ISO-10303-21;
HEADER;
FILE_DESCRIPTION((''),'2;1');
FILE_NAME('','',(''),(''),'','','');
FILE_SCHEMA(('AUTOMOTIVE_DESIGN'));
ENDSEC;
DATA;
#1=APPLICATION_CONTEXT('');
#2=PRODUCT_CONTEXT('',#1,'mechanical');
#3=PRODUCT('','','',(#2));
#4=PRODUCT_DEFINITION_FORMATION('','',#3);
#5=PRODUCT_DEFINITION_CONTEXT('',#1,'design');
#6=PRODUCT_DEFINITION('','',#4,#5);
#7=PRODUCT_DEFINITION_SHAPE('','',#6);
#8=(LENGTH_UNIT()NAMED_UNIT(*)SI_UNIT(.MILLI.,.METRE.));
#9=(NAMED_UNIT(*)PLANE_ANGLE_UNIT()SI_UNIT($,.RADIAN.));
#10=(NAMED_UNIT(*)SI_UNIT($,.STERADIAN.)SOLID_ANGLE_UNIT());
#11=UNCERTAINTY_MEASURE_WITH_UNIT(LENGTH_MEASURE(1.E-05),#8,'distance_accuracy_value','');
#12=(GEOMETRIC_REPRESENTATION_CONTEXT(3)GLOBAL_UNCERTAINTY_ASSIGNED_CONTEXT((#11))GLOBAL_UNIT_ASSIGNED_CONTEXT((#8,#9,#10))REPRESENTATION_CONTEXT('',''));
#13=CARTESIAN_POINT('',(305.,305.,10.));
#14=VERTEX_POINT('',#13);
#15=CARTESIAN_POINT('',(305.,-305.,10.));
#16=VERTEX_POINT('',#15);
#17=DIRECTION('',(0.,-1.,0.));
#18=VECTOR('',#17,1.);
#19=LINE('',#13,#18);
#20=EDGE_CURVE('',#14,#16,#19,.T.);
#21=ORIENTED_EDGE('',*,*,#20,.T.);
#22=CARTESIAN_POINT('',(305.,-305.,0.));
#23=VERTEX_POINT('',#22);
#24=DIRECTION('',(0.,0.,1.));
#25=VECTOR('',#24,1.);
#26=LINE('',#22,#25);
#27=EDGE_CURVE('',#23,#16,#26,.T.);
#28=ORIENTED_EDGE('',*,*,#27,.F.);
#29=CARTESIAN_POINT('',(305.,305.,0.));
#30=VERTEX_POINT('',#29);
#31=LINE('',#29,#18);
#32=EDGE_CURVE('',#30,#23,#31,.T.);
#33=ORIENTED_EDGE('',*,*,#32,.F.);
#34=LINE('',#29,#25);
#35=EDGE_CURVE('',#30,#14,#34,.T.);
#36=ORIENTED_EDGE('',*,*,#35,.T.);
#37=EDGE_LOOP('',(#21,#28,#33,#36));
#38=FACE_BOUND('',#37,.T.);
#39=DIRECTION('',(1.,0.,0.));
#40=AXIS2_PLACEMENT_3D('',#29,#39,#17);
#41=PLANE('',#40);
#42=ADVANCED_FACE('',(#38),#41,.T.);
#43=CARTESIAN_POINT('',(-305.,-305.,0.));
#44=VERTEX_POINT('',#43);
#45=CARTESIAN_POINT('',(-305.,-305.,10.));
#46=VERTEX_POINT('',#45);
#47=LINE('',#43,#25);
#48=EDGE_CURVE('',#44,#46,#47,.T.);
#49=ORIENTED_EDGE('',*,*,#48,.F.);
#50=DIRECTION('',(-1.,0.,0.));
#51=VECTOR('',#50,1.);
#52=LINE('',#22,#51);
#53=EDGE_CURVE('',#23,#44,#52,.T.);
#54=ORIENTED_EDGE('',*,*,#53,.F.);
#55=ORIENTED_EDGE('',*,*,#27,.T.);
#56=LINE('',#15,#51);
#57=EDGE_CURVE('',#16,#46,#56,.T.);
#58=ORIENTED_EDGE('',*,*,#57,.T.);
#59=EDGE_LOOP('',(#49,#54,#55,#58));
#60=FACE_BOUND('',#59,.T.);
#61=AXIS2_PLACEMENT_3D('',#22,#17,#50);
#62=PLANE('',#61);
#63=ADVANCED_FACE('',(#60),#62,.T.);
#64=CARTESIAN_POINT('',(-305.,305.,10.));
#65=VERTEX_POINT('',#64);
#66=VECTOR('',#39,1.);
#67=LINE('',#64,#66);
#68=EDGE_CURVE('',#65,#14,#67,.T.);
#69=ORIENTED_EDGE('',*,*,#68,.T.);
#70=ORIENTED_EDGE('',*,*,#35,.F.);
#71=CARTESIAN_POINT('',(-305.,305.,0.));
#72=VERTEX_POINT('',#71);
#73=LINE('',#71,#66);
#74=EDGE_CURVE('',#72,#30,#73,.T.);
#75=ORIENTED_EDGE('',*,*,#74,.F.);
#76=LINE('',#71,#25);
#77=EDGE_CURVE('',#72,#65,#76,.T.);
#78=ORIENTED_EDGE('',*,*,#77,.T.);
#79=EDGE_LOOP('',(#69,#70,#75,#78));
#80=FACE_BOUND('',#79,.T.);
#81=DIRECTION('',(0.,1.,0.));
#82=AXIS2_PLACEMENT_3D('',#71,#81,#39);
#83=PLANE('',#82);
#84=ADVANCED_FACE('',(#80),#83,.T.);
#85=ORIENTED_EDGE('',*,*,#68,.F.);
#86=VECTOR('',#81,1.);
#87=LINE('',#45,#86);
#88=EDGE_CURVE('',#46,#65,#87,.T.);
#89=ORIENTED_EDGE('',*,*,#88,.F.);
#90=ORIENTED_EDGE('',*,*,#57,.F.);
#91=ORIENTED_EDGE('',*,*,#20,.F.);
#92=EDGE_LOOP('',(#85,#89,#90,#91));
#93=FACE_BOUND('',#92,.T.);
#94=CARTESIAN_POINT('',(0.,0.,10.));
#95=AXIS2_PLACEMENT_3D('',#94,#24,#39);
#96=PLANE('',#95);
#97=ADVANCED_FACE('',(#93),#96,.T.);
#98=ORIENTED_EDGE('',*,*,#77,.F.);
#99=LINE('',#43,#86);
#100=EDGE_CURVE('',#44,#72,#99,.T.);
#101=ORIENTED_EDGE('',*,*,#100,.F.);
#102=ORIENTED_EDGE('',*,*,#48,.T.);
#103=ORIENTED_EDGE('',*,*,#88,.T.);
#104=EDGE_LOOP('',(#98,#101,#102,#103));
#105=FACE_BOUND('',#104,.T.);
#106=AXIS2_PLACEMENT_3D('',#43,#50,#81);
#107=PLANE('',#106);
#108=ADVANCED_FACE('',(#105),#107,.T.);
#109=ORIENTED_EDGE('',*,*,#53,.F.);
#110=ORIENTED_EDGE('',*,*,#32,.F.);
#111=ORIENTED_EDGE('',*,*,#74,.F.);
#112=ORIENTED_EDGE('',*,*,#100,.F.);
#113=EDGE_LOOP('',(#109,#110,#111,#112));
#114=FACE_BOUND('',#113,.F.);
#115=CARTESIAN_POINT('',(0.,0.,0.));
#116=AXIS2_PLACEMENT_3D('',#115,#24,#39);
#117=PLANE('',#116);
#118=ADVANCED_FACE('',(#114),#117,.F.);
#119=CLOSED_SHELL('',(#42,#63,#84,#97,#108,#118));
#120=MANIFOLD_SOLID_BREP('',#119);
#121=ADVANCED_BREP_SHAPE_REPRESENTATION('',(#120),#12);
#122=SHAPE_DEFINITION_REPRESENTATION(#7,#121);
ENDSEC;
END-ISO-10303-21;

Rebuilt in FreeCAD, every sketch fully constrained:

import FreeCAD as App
import Part
import Sketcher
from FreeCAD import Vector

doc = App.newDocument("Part")
params = doc.addObject("Spreadsheet::Sheet", "Params")
for row, (alias, value) in enumerate([
    ("sketch1_width", "610 mm"),
    ("pad1_length", "10 mm"),
], start=1):
    params.set(f"A{row}", alias)
    params.set(f"B{row}", "=" + value)
    params.setAlias(f"B{row}", alias)

body = doc.addObject("PartDesign::Body", "Body")

# Sketch on XY plane
sketch1 = doc.addObject("Sketcher::SketchObject", "Sketch")
body.addObject(sketch1)
sketch1.AttachmentSupport = (doc.XY_Plane, [""])
sketch1.MapMode = "FlatFace"
sketch1.addGeometry([
    Part.LineSegment(Vector(305, 305, 0), Vector(-305, 305, 0)),
    Part.LineSegment(Vector(-305, 305, 0), Vector(-305, -305, 0)),
    Part.LineSegment(Vector(-305, -305, 0), Vector(305, -305, 0)),
    Part.LineSegment(Vector(305, -305, 0), Vector(305, 305, 0)),
], False)
sketch1.addConstraint([
    Sketcher.Constraint("Coincident", 0, 2, 1, 1),
    Sketcher.Constraint("Coincident", 1, 2, 2, 1),
    Sketcher.Constraint("Coincident", 2, 2, 3, 1),
    Sketcher.Constraint("Coincident", 3, 2, 0, 1),
    Sketcher.Constraint("Horizontal", 0),
    Sketcher.Constraint("Vertical", 1),
    Sketcher.Constraint("Horizontal", 2),
    Sketcher.Constraint("Vertical", 3),
    Sketcher.Constraint("Symmetric", 0, 2, 2, 2, -1, 1),
    Sketcher.Constraint("Equal", 2, 1),
    Sketcher.Constraint("DistanceX", 0, 2, 0, 1, 610.0),
])
sketch1.setExpression("Constraints[10]", "Params.sketch1_width")
pad1 = doc.addObject("PartDesign::Pad", "Pad")
body.addObject(pad1)
pad1.Profile = sketch1
pad1.setExpression("Length", "Params.pad1_length")

doc.recompute()
